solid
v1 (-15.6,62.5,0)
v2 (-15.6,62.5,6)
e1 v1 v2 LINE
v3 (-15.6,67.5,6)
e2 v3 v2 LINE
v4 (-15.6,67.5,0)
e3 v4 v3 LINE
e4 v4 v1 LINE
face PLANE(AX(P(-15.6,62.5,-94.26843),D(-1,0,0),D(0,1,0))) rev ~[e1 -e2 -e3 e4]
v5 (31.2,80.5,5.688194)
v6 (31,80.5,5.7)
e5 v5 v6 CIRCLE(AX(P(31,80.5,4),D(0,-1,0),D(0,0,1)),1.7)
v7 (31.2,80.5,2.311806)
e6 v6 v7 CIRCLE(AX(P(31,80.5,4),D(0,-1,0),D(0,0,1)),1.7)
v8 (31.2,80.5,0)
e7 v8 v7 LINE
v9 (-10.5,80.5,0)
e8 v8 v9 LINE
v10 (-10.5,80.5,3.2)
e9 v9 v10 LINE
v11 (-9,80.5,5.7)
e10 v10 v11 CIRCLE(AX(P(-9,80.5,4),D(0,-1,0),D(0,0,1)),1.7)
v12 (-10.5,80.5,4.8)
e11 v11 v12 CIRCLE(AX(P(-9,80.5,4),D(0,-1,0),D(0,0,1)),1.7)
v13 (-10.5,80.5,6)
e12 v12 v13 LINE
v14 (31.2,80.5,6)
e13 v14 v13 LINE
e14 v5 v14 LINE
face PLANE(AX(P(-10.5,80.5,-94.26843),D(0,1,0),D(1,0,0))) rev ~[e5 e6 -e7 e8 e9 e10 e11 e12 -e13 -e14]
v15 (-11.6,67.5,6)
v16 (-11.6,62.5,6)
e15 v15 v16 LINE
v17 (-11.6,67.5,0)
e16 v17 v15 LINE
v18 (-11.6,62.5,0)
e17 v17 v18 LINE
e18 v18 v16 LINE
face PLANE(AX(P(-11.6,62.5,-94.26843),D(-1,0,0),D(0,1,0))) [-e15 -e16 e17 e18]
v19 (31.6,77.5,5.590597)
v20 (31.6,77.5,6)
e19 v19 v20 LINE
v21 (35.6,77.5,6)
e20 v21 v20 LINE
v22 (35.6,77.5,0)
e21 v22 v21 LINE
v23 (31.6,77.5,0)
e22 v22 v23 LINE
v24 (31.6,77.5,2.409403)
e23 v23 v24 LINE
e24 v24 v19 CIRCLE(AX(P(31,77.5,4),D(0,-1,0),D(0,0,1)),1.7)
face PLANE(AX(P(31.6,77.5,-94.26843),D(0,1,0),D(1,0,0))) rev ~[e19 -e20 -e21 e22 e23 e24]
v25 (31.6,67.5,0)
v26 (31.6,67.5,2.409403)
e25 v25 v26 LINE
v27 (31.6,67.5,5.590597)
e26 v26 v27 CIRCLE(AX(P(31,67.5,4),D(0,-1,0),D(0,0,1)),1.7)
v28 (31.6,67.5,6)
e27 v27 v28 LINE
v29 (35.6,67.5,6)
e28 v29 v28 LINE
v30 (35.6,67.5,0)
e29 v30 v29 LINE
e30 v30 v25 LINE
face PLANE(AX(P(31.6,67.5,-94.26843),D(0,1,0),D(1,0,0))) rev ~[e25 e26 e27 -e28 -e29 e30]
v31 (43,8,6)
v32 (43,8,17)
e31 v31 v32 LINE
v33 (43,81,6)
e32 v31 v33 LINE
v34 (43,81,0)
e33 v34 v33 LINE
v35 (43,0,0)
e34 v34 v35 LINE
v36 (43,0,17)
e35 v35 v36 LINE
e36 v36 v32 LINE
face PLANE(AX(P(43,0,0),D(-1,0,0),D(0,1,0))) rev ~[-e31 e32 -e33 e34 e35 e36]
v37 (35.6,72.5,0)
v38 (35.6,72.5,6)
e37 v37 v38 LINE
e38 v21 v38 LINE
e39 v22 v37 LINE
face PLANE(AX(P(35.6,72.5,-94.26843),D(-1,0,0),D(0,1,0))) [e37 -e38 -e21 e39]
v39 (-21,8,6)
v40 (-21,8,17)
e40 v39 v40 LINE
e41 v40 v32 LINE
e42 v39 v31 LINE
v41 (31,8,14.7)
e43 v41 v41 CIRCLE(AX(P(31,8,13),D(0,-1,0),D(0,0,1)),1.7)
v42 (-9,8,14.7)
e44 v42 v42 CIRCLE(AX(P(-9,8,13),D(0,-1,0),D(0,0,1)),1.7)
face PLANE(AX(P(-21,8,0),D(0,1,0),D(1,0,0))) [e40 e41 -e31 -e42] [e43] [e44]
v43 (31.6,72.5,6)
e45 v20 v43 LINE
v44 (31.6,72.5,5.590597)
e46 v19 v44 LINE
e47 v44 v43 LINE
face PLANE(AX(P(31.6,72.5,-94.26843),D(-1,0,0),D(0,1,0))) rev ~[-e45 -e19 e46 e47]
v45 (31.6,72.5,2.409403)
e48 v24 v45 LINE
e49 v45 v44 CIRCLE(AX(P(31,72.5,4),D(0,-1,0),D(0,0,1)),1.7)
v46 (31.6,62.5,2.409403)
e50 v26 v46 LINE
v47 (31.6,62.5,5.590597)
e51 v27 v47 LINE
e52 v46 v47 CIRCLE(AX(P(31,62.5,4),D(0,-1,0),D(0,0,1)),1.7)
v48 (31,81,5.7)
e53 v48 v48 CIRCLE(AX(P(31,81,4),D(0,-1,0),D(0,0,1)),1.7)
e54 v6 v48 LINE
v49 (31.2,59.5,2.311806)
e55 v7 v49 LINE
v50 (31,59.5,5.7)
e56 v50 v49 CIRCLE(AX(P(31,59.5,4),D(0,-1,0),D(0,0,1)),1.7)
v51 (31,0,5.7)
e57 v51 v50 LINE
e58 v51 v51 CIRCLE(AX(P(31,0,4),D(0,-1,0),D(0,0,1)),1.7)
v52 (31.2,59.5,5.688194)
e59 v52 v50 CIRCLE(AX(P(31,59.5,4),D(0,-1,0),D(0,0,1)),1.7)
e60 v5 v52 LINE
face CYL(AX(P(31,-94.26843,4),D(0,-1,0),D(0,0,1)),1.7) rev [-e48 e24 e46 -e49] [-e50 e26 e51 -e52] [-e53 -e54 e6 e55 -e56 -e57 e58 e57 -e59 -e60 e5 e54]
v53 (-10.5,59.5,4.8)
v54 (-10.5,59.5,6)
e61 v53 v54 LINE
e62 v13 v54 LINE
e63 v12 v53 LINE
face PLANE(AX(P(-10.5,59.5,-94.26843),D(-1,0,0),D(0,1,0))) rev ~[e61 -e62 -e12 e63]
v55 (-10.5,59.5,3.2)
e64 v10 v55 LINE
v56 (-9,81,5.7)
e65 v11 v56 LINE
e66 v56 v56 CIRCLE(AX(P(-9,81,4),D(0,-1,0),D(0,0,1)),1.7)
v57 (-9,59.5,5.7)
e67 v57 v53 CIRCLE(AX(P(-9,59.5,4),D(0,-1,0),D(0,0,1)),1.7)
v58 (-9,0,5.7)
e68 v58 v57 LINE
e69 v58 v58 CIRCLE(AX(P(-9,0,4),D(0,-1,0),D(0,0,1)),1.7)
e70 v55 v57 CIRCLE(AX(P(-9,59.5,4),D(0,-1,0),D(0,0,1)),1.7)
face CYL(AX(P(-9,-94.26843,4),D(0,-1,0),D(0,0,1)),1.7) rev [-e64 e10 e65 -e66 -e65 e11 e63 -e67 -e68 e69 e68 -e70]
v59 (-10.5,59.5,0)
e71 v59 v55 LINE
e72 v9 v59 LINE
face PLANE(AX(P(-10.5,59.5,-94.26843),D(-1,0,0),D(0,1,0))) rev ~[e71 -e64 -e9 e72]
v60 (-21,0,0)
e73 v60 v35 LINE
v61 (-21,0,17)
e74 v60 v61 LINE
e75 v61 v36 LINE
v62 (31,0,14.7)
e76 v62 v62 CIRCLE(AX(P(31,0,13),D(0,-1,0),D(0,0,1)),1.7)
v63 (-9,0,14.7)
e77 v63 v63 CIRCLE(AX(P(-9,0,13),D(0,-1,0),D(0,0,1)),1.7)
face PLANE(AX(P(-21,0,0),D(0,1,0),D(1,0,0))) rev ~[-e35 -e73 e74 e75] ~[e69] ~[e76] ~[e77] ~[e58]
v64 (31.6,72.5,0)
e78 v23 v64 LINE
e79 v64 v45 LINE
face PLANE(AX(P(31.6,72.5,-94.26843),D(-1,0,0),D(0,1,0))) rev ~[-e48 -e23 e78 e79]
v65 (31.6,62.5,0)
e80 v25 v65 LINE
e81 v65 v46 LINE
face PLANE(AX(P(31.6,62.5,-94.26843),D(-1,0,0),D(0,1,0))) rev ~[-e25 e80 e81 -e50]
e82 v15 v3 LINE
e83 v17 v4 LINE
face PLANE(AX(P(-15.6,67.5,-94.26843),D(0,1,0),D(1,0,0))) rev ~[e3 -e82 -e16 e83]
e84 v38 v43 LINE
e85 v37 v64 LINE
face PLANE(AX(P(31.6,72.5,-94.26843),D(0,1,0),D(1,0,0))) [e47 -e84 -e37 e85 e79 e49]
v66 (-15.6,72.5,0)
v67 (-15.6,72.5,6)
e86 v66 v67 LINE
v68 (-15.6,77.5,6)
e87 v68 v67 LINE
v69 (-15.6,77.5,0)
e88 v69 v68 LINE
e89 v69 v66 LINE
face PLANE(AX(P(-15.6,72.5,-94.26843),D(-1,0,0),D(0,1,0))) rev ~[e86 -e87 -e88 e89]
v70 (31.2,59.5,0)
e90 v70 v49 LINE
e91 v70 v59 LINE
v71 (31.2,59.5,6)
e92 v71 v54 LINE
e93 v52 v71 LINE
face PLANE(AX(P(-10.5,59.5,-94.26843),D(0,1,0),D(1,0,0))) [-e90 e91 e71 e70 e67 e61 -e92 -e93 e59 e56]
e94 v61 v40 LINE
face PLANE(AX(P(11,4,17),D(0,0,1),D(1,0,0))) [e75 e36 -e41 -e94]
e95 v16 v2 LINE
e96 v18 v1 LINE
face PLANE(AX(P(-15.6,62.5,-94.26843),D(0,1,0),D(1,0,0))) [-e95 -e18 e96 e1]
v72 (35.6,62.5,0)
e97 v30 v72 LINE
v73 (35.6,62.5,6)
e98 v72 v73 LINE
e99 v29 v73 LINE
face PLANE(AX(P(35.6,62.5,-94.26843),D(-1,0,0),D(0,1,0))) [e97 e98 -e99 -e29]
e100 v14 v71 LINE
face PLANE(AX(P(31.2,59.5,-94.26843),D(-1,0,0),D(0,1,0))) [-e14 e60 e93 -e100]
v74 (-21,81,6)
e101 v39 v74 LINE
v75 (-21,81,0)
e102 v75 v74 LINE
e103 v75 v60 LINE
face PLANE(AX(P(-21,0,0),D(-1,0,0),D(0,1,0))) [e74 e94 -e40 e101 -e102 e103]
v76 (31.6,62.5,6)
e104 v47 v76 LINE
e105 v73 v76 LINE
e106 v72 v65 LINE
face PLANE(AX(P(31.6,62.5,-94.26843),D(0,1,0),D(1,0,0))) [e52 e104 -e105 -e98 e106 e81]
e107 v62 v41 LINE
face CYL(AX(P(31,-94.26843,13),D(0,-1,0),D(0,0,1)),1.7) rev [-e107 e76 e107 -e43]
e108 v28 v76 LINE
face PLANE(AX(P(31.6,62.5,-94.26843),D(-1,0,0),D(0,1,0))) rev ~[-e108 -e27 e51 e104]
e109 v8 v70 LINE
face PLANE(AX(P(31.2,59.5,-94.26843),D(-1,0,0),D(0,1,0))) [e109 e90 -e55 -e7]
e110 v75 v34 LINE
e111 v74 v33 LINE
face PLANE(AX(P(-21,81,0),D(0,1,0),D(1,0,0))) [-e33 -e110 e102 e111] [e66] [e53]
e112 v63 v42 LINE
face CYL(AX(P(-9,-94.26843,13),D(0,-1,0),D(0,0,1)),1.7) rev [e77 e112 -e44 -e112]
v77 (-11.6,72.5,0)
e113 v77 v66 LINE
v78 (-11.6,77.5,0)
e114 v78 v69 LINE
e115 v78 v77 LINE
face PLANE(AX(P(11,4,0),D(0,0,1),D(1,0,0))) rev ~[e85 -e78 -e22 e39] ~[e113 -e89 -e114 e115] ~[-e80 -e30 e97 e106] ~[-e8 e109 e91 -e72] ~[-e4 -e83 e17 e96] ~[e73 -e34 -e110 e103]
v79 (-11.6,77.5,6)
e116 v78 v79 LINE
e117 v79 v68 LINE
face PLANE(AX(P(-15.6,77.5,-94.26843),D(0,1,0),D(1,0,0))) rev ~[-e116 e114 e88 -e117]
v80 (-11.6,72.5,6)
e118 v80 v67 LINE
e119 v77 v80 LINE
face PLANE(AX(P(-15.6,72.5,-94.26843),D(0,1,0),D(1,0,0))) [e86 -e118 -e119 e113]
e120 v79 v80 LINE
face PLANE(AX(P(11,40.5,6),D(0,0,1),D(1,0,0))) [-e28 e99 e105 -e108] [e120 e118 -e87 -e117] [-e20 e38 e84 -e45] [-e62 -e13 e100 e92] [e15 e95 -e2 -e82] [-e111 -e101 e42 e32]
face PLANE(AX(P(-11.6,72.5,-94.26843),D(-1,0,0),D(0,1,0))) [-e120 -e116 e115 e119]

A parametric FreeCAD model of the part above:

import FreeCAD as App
import Part
import Sketcher
from FreeCAD import Vector

doc = App.newDocument("Part")
body = doc.addObject("PartDesign::Body", "Body")

sketch1 = body.newObject("Sketcher::SketchObject", "Sketch")
sketch1.AttachmentSupport = (doc.getObject("XY_Plane"), [""])
sketch1.MapMode = "FlatFace"
sketch1.addGeometry(Part.LineSegment(Vector(-21, 8, 0), Vector(-21, 0, 0)), False)
sketch1.addGeometry(Part.LineSegment(Vector(-21, 0, 0), Vector(43, 0, 0)), False)
sketch1.addGeometry(Part.LineSegment(Vector(43, 0, 0), Vector(43, 8, 0)), False)
sketch1.addGeometry(Part.LineSegment(Vector(43, 8, 0), Vector(-21, 8, 0)), False)
sketch1.addConstraint(Sketcher.Constraint("Coincident", 0, 2, 1, 1))
sketch1.addConstraint(Sketcher.Constraint("Coincident", 1, 2, 2, 1))
sketch1.addConstraint(Sketcher.Constraint("Coincident", 2, 2, 3, 1))
sketch1.addConstraint(Sketcher.Constraint("Coincident", 3, 2, 0, 1))
sketch1.addConstraint(Sketcher.Constraint("Vertical", 0))
sketch1.addConstraint(Sketcher.Constraint("Horizontal", 1))
sketch1.addConstraint(Sketcher.Constraint("Vertical", 2))
sketch1.addConstraint(Sketcher.Constraint("Horizontal", 3))
sketch1.addConstraint(Sketcher.Constraint("PointOnObject", 0, 2, -1))
sketch1.addConstraint(Sketcher.Constraint("DistanceX", 1, 1, 1, 2, 64.0))
sketch1.addConstraint(Sketcher.Constraint("DistanceY", 0, 2, 0, 1, 8.0))
sketch1.addConstraint(Sketcher.Constraint("DistanceX", 0, 2, -1, 1, 21.0))
pad1 = body.newObject("PartDesign::Pad", "Pad")
pad1.Profile = sketch1
pad1.Length = 17

sketch2 = body.newObject("Sketcher::SketchObject", "Sketch001")
sketch2.AttachmentSupport = (doc.getObject("XY_Plane"), [""])
sketch2.MapMode = "FlatFace"
sketch2.addGeometry(Part.LineSegment(Vector(-21, 81, 0), Vector(-21, 0, 0)), False)
sketch2.addGeometry(Part.LineSegment(Vector(-21, 0, 0), Vector(43, 0, 0)), False)
sketch2.addGeometry(Part.LineSegment(Vector(43, 0, 0), Vector(43, 81, 0)), False)
sketch2.addGeometry(Part.LineSegment(Vector(43, 81, 0), Vector(-21, 81, 0)), False)
sketch2.addConstraint(Sketcher.Constraint("Coincident", 0, 2, 1, 1))
sketch2.addConstraint(Sketcher.Constraint("Coincident", 1, 2, 2, 1))
sketch2.addConstraint(Sketcher.Constraint("Coincident", 2, 2, 3, 1))
sketch2.addConstraint(Sketcher.Constraint("Coincident", 3, 2, 0, 1))
sketch2.addConstraint(Sketcher.Constraint("Vertical", 0))
sketch2.addConstraint(Sketcher.Constraint("Horizontal", 1))
sketch2.addConstraint(Sketcher.Constraint("Vertical", 2))
sketch2.addConstraint(Sketcher.Constraint("Horizontal", 3))
sketch2.addConstraint(Sketcher.Constraint("PointOnObject", 0, 2, -1))
sketch2.addConstraint(Sketcher.Constraint("DistanceX", 1, 1, 1, 2, 64.0))
sketch2.addConstraint(Sketcher.Constraint("DistanceY", 0, 2, 0, 1, 81.0))
sketch2.addConstraint(Sketcher.Constraint("DistanceX", 0, 2, -1, 1, 21.0))
pad2 = body.newObject("PartDesign::Pad", "Pad001")
pad2.Profile = sketch2
pad2.Length = 6

sketch3 = body.newObject("Sketcher::SketchObject", "Sketch002")
sketch3.AttachmentSupport = (doc.getObject("XY_Plane"), [""])
sketch3.MapMode = "FlatFace"
sketch3.addGeometry(Part.LineSegment(Vector(-10, 80, 0), Vector(-10, 60, 0)), False)
sketch3.addGeometry(Part.LineSegment(Vector(-10, 60, 0), Vector(31, 60, 0)), False)
sketch3.addGeometry(Part.LineSegment(Vector(31, 60, 0), Vector(31, 80, 0)), False)
sketch3.addGeometry(Part.LineSegment(Vector(31, 80, 0), Vector(-10, 80, 0)), False)
sketch3.addConstraint(Sketcher.Constraint("Coincident", 0, 2, 1, 1))
sketch3.addConstraint(Sketcher.Constraint("Coincident", 1, 2, 2, 1))
sketch3.addConstraint(Sketcher.Constraint("Coincident", 2, 2, 3, 1))
sketch3.addConstraint(Sketcher.Constraint("Coincident", 3, 2, 0, 1))
sketch3.addConstraint(Sketcher.Constraint("Vertical", 0))
sketch3.addConstraint(Sketcher.Constraint("Horizontal", 1))
sketch3.addConstraint(Sketcher.Constraint("Vertical", 2))
sketch3.addConstraint(Sketcher.Constraint("Horizontal", 3))
sketch3.addConstraint(Sketcher.Constraint("DistanceY", 0, 2, 0, 1, 21.0))
sketch3.addConstraint(Sketcher.Constraint("DistanceX", 1, 1, 1, 2, 41.7))
sketch3.addConstraint(Sketcher.Constraint("DistanceX", 0, 2, -1, 1, 10.5))
sketch3.addConstraint(Sketcher.Constraint("DistanceY", -1, 1, 0, 2, 59.5))
pocket1 = body.newObject("PartDesign::Pocket", "Pocket")
pocket1.Profile = sketch3
pocket1.Type = "ThroughAll"
pocket1.Midplane = True

sketch4 = body.newObject("Sketcher::SketchObject", "Sketch003")
sketch4.AttachmentSupport = (doc.getObject("XY_Plane"), [""])
sketch4.MapMode = "FlatFace"
sketch4.addGeometry(Part.LineSegment(Vector(-15.6, 67.5, 0), Vector(-15.6, 62.5, 0)), False)
sketch4.addGeometry(Part.LineSegment(Vector(-15.6, 62.5, 0), Vector(-11.6, 62.5, 0)), False)
sketch4.addGeometry(Part.LineSegment(Vector(-11.6, 62.5, 0), Vector(-11.6, 67.5, 0)), False)
sketch4.addGeometry(Part.LineSegment(Vector(-11.6, 67.5, 0), Vector(-15.6, 67.5, 0)), False)
sketch4.addGeometry(Part.LineSegment(Vector(-15.6, 77.5, 0), Vector(-15.6, 72.5, 0)), False)
sketch4.addGeometry(Part.LineSegment(Vector(-15.6, 72.5, 0), Vector(-11.6, 72.5, 0)), False)
sketch4.addGeometry(Part.LineSegment(Vector(-11.6, 72.5, 0), Vector(-11.6, 77.5, 0)), False)
sketch4.addGeometry(Part.LineSegment(Vector(-11.6, 77.5, 0), Vector(-15.6, 77.5, 0)), False)
sketch4.addGeometry(Part.LineSegment(Vector(31.6, 67.5, 0), Vector(31.6, 62.5, 0)), False)
sketch4.addGeometry(Part.LineSegment(Vector(31.6, 62.5, 0), Vector(35.6, 62.5, 0)), False)
sketch4.addGeometry(Part.LineSegment(Vector(35.6, 62.5, 0), Vector(35.6, 67.5, 0)), False)
sketch4.addGeometry(Part.LineSegment(Vector(35.6, 67.5, 0), Vector(31.6, 67.5, 0)), False)
sketch4.addGeometry(Part.LineSegment(Vector(31.6, 77.5, 0), Vector(31.6, 72.5, 0)), False)
sketch4.addGeometry(Part.LineSegment(Vector(31.6, 72.5, 0), Vector(35.6, 72.5, 0)), False)
sketch4.addGeometry(Part.LineSegment(Vector(35.6, 72.5, 0), Vector(35.6, 77.5, 0)), False)
sketch4.addGeometry(Part.LineSegment(Vector(35.6, 77.5, 0), Vector(31.6, 77.5, 0)), False)
sketch4.addConstraint(Sketcher.Constraint("Coincident", 0, 2, 1, 1))
sketch4.addConstraint(Sketcher.Constraint("Coincident", 1, 2, 2, 1))
sketch4.addConstraint(Sketcher.Constraint("Coincident", 2, 2, 3, 1))
sketch4.addConstraint(Sketcher.Constraint("Coincident", 3, 2, 0, 1))
sketch4.addConstraint(Sketcher.Constraint("Coincident", 4, 2, 5, 1))
sketch4.addConstraint(Sketcher.Constraint("Coincident", 5, 2, 6, 1))
sketch4.addConstraint(Sketcher.Constraint("Coincident", 6, 2, 7, 1))
sketch4.addConstraint(Sketcher.Constraint("Coincident", 7, 2, 4, 1))
sketch4.addConstraint(Sketcher.Constraint("Coincident", 8, 2, 9, 1))
sketch4.addConstraint(Sketcher.Constraint("Coincident", 9, 2, 10, 1))
sketch4.addConstraint(Sketcher.Constraint("Coincident", 10, 2, 11, 1))
sketch4.addConstraint(Sketcher.Constraint("Coincident", 11, 2, 8, 1))
sketch4.addConstraint(Sketcher.Constraint("Coincident", 12, 2, 13, 1))
sketch4.addConstraint(Sketcher.Constraint("Coincident", 13, 2, 14, 1))
sketch4.addConstraint(Sketcher.Constraint("Coincident", 14, 2, 15, 1))
sketch4.addConstraint(Sketcher.Constraint("Coincident", 15, 2, 12, 1))
sketch4.addConstraint(Sketcher.Constraint("Vertical", 0))
sketch4.addConstraint(Sketcher.Constraint("Horizontal", 1))
sketch4.addConstraint(Sketcher.Constraint("Vertical", 2))
sketch4.addConstraint(Sketcher.Constraint("Horizontal", 3))
sketch4.addConstraint(Sketcher.Constraint("Vertical", 4))
sketch4.addConstraint(Sketcher.Constraint("Horizontal", 5))
sketch4.addConstraint(Sketcher.Constraint("Vertical", 6))
sketch4.addConstraint(Sketcher.Constraint("Horizontal", 7))
sketch4.addConstraint(Sketcher.Constraint("Vertical", 8))
sketch4.addConstraint(Sketcher.Constraint("Horizontal", 9))
sketch4.addConstraint(Sketcher.Constraint("Vertical", 10))
sketch4.addConstraint(Sketcher.Constraint("Horizontal", 11))
sketch4.addConstraint(Sketcher.Constraint("Vertical", 12))
sketch4.addConstraint(Sketcher.Constraint("Horizontal", 13))
sketch4.addConstraint(Sketcher.Constraint("Vertical", 14))
sketch4.addConstraint(Sketcher.Constraint("Horizontal", 15))
sketch4.addConstraint(Sketcher.Constraint("Horizontal", 1, 2, 8, 2))
sketch4.addConstraint(Sketcher.Constraint("Horizontal", 3, 2, 10, 2))
sketch4.addConstraint(Sketcher.Constraint("Horizontal", 5, 2, 12, 2))
sketch4.addConstraint(Sketcher.Constraint("Horizontal", 7, 2, 14, 2))
sketch4.addConstraint(Sketcher.Constraint("Vertical", 3, 2, 4, 2))
sketch4.addConstraint(Sketcher.Constraint("Vertical", 2, 2, 5, 2))
sketch4.addConstraint(Sketcher.Constraint("Vertical", 11, 2, 12, 2))
sketch4.addConstraint(Sketcher.Constraint("Vertical", 10, 2, 13, 2))
sketch4.addConstraint(Sketcher.Constraint("Equal", 7, 9))
sketch4.addConstraint(Sketcher.Constraint("Equal", 2, 4))
sketch4.addConstraint(Sketcher.Constraint("DistanceX", 1, 1, 1, 2, 4.0))
sketch4.addConstraint(Sketcher.Constraint("DistanceY", 0, 2, 0, 1, 5.0))
sketch4.addConstraint(Sketcher.Constraint("DistanceY", 3, 2, 4, 2, 5.0))
sketch4.addConstraint(Sketcher.Constraint("DistanceX", 0, 2, -1, 1, 15.6))
sketch4.addConstraint(Sketcher.Constraint("DistanceY", -1, 1, 0, 2, 62.5))
sketch4.addConstraint(Sketcher.Constraint("DistanceX", -1, 1, 8, 2, 31.6))
pocket2 = body.newObject("PartDesign::Pocket", "Pocket001")
pocket2.Profile = sketch4
pocket2.Type = "ThroughAll"
pocket2.Midplane = True

sketch5 = body.newObject("Sketcher::SketchObject", "Sketch004")
sketch5.AttachmentSupport = (doc.getObject("XZ_Plane"), [""])
sketch5.MapMode = "FlatFace"
sketch5.addGeometry(Part.Circle(Vector(-9, 4, 0), Vector(0, 0, 1), 1.7), False)
sketch5.addGeometry(Part.Circle(Vector(-9, 13, 0), Vector(0, 0, 1), 1.7), False)
sketch5.addGeometry(Part.Circle(Vector(31, 4, 0), Vector(0, 0, 1), 1.7), False)
sketch5.addGeometry(Part.Circle(Vector(31, 13, 0), Vector(0, 0, 1), 1.7), False)
sketch5.addConstraint(Sketcher.Constraint("Equal", 0, 1))
sketch5.addConstraint(Sketcher.Constraint("Equal", 1, 2))
sketch5.addConstraint(Sketcher.Constraint("Equal", 2, 3))
sketch5.addConstraint(Sketcher.Constraint("Horizontal", 0, 3, 2, 3))
sketch5.addConstraint(Sketcher.Constraint("Horizontal", 1, 3, 3, 3))
sketch5.addConstraint(Sketcher.Constraint("Vertical", 0, 3, 1, 3))
sketch5.addConstraint(Sketcher.Constraint("Vertical", 2, 3, 3, 3))
sketch5.addConstraint(Sketcher.Constraint("Diameter", 0, 3.4))
sketch5.addConstraint(Sketcher.Constraint("DistanceX", 0, 3, -1, 1, 9.0))
sketch5.addConstraint(Sketcher.Constraint("DistanceY", -1, 1, 0, 3, 4.0))
sketch5.addConstraint(Sketcher.Constraint("DistanceY", -1, 1, 1, 3, 13.0))
sketch5.addConstraint(Sketcher.Constraint("DistanceX", -1, 1, 2, 3, 31.0))
pocket3 = body.newObject("PartDesign::Pocket", "Pocket002")
pocket3.Profile = sketch5
pocket3.Type = "ThroughAll"
pocket3.Midplane = True

doc.recompute()
